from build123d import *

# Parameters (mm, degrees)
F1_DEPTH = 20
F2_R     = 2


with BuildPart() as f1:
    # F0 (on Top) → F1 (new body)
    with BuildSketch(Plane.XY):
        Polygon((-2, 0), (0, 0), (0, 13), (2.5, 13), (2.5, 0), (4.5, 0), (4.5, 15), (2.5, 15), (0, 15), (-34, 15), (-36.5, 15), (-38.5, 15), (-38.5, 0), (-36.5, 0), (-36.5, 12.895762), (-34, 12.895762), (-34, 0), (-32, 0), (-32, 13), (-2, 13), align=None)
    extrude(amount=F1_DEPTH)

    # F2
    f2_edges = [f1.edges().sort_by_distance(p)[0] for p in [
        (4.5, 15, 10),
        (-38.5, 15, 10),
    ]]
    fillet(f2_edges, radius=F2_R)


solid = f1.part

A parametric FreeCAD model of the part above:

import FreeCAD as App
import Part
import Sketcher
from FreeCAD import Vector
Q = App.Units.Quantity


def edges_at(feature, points):
    """Names of the edges that pass closest to the given points."""
    edges = feature.Shape.Edges
    near = lambda p: min(range(len(edges)), key=lambda i: edges[i].distToShape(Part.Vertex(*p))[0])
    return sorted({f"Edge{near(p) + 1}" for p in points})


def add_polygon(sketch, points):
    """Adds a closed chain of lines whose ends are joined by coincident constraints."""
    first, n = sketch.GeometryCount, len(points)
    for a, b in zip(points, points[1:] + points[:1]):
        sketch.addGeometry(Part.LineSegment(App.Vector(*a, 0), App.Vector(*b, 0)), False)
    for i in range(n):
        sketch.addConstraint(Sketcher.Constraint("Coincident", first + i, 2, first + (i + 1) % n, 1))

doc = App.newDocument("Part")
body = doc.addObject("PartDesign::Body", "Body")

# Sketch on XY plane
sketch1 = body.newObject("Sketcher::SketchObject", "Sketch")
sketch1.AttachmentSupport = (doc.getObject("XY_Plane"), [""])
sketch1.MapMode = "FlatFace"
add_polygon(sketch1, [(-2, 0), (0, 0), (0, 13), (2.5, 13), (2.5, 0), (4.5, 0), (4.5, 15), (-38.5, 15), (-38.5, 0), (-36.5, 0), (-36.5, 12.9), (-34, 12.9), (-34, 0), (-32, 0), (-32, 13), (-2, 13)])  # lines 0-15
sketch1.addConstraint([
    Sketcher.Constraint("Horizontal", 0),
    Sketcher.Constraint("Vertical", 1),
    Sketcher.Constraint("Horizontal", 2),
    Sketcher.Constraint("Vertical", 3),
    Sketcher.Constraint("Horizontal", 4),
    Sketcher.Constraint("Vertical", 5),
    Sketcher.Constraint("Horizontal", 6),
    Sketcher.Constraint("Vertical", 7),
    Sketcher.Constraint("Horizontal", 8),
    Sketcher.Constraint("Vertical", 9),
    Sketcher.Constraint("Horizontal", 10),
    Sketcher.Constraint("Vertical", 11),
    Sketcher.Constraint("Horizontal", 12),
    Sketcher.Constraint("Vertical", 13),
    Sketcher.Constraint("Horizontal", 14),
    Sketcher.Constraint("Vertical", 15),
    Sketcher.Constraint("Coincident", 0, 2, -1, 1),
    Sketcher.Constraint("PointOnObject", 3, 2, -1),
    Sketcher.Constraint("PointOnObject", 7, 2, -1),
    Sketcher.Constraint("PointOnObject", 11, 2, -1),
    Sketcher.Constraint("Horizontal", 2, 2, 13, 2),
    Sketcher.Constraint("Equal", 0, 4),
    Sketcher.Constraint("Equal", 4, 8),
    Sketcher.Constraint("Equal", 2, 10),
    Sketcher.Constraint("Equal", 8, 12),
    Sketcher.Constraint("DistanceX", 0, 1, 0, 2, Q("2 mm")),
    Sketcher.Constraint("DistanceX", 6, 2, 6, 1, Q("43 mm")),
    Sketcher.Constraint("DistanceX", 14, 1, 14, 2, Q("30 mm")),
    Sketcher.Constraint("DistanceY", 1, 1, 1, 2, Q("13 mm")),
    Sketcher.Constraint("DistanceY", 5, 1, 5, 2, Q("15 mm")),
    Sketcher.Constraint("DistanceY", 9, 1, 9, 2, Q("12.895762 mm")),
])
pad1 = body.newObject("PartDesign::Pad", "Pad")
pad1.Profile = sketch1
pad1.Length = 20
doc.recompute()

fillet = body.newObject("PartDesign::Fillet", "Fillet")
fillet.Base = (pad1, edges_at(pad1, [(4.5, 15, 10), (-38.5, 15, 10)]))
fillet.Radius = 2

doc.recompute()
